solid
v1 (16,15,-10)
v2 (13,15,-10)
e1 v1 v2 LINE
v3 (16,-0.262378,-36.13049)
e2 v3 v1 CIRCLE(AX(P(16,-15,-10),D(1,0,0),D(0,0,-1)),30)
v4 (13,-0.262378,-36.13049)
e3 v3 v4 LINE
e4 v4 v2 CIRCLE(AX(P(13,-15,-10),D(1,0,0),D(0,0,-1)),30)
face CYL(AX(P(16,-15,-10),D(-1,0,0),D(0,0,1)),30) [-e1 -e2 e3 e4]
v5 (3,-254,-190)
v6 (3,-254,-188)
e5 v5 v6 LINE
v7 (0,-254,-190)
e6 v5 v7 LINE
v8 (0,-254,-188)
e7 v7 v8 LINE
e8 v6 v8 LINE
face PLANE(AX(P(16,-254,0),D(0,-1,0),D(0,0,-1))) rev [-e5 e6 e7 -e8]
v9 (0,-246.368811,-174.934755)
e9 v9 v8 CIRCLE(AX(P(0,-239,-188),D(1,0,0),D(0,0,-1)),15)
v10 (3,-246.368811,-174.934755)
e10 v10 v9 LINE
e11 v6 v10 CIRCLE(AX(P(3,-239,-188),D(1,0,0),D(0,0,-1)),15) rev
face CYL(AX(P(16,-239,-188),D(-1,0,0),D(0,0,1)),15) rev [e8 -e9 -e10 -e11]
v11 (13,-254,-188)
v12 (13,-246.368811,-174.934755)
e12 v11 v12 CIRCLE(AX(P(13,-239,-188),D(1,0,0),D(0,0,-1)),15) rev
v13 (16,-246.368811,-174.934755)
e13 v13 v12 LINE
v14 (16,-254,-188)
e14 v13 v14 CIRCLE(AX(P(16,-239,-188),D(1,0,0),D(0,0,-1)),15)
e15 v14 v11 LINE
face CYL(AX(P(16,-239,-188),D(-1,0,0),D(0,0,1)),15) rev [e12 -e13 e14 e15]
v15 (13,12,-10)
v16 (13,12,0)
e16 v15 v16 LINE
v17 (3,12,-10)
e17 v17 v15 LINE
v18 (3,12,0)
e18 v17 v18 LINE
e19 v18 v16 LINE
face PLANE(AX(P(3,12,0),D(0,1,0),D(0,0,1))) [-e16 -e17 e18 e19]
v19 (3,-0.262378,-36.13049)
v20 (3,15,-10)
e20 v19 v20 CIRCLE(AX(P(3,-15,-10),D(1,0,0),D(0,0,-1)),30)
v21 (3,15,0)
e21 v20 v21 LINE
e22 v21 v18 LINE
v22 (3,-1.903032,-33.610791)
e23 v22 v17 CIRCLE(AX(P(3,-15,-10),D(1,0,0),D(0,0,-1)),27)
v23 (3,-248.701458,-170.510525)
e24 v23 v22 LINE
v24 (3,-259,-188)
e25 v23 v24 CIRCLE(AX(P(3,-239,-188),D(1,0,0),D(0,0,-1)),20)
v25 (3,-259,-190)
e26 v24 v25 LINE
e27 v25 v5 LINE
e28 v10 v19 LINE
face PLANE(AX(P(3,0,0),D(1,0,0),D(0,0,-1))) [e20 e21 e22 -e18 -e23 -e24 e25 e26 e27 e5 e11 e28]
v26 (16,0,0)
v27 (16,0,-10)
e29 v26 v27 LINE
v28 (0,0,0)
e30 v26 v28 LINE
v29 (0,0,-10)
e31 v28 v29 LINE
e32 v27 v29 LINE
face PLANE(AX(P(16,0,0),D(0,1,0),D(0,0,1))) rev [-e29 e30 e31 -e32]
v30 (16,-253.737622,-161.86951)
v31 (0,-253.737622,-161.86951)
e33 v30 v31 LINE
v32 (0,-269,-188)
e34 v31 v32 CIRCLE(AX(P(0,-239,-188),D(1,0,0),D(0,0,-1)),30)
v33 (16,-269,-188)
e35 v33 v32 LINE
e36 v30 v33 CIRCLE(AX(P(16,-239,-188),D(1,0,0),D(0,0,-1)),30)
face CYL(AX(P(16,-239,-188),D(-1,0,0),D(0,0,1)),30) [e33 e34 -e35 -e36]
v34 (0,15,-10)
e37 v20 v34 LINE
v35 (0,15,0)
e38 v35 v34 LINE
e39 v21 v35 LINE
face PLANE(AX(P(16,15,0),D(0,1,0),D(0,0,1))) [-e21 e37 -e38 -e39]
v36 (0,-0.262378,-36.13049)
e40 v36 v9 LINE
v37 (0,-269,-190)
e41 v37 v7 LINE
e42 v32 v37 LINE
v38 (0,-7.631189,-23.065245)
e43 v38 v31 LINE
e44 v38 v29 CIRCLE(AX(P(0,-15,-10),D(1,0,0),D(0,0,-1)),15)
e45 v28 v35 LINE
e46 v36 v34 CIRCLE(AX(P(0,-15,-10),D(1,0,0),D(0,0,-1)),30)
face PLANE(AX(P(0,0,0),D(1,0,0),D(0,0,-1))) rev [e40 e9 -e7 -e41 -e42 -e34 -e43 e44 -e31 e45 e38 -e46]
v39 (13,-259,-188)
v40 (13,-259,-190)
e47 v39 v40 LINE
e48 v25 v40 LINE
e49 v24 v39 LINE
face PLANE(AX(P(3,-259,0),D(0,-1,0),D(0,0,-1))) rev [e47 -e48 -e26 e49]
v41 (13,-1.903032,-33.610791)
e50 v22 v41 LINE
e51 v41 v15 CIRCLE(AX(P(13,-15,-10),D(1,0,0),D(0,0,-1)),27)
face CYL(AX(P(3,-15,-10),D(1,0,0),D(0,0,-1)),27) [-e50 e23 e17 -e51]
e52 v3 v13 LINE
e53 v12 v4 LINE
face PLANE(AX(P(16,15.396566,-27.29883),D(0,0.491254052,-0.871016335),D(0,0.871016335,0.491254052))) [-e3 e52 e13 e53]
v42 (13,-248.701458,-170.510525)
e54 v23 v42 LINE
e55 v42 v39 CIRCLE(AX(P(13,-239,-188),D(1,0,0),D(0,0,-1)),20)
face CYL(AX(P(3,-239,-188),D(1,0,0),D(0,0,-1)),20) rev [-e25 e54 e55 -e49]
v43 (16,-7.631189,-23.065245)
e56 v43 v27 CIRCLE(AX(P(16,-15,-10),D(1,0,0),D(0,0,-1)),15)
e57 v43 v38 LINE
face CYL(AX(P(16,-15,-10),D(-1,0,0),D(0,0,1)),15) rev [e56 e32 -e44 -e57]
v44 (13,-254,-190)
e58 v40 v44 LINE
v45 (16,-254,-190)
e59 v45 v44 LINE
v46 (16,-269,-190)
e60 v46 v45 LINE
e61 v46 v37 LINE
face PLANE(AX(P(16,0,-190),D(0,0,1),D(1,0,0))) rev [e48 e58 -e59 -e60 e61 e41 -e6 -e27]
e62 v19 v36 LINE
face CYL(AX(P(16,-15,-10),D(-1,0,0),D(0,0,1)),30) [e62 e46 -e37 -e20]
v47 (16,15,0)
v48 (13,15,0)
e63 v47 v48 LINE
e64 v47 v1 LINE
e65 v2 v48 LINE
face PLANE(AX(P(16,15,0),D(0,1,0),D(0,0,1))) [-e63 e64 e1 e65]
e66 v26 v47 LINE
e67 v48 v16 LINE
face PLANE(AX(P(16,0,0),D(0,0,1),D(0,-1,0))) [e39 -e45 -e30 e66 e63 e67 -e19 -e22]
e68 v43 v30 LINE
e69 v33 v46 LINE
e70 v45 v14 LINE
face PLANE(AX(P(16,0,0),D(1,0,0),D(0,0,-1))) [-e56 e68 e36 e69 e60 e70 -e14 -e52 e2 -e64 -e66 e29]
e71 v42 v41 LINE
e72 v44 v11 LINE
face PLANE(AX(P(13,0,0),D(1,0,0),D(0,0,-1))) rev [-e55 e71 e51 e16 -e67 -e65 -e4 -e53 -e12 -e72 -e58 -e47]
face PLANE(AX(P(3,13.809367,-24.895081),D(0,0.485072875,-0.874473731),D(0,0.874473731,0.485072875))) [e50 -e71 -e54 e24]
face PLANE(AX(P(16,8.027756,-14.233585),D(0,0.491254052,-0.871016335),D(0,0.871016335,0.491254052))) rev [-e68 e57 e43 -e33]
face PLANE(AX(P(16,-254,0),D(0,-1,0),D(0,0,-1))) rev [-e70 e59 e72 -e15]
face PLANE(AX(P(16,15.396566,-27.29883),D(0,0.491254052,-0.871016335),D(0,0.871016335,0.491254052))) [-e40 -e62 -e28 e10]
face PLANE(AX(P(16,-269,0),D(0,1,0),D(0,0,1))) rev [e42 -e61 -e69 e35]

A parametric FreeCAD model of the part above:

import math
import FreeCAD as App
import Part
import Sketcher

V = App.Vector

doc = App.newDocument("Part")
body = doc.addObject("PartDesign::Body", "Body")

# Sketch on YZ plane
sketch1 = doc.addObject("Sketcher::SketchObject", "Sketch")
body.addObject(sketch1)
sketch1.AttachmentSupport = (doc.YZ_Plane, [""])
sketch1.MapMode = "FlatFace"
sketch1.addGeometry(Part.LineSegment(V(0, 0, 0), V(0, -10, 0)), False)
sketch1.addGeometry(Part.ArcOfCircle(Part.Circle(V(-15, -10, 0), V(0, 0, 1), 15), math.radians(-61), math.radians(0)), False)
sketch1.addGeometry(Part.LineSegment(V(-7.6, -23.1, 0), V(-253.7, -161.9, 0)), False)
sketch1.addGeometry(Part.ArcOfCircle(Part.Circle(V(-239, -188, 0), V(0, 0, 1), 30), math.radians(119), math.radians(180)), False)
sketch1.addGeometry(Part.LineSegment(V(-269, -188, 0), V(-269, -190, 0)), False)
sketch1.addGeometry(Part.LineSegment(V(-269, -190, 0), V(-254, -190, 0)), False)
sketch1.addGeometry(Part.LineSegment(V(-254, -190, 0), V(-254, -188, 0)), False)
sketch1.addGeometry(Part.ArcOfCircle(Part.Circle(V(-239, -188, 0), V(0, 0, 1), 15), math.radians(119), math.radians(180)), False)
sketch1.addGeometry(Part.LineSegment(V(-246.4, -174.9, 0), V(-0.3, -36.1, 0)), False)
sketch1.addGeometry(Part.ArcOfCircle(Part.Circle(V(-15, -10, 0), V(0, 0, 1), 30), math.radians(-61), math.radians(0)), False)
sketch1.addGeometry(Part.LineSegment(V(15, -10, 0), V(15, 0, 0)), False)
sketch1.addGeometry(Part.LineSegment(V(15, 0, 0), V(0, 0, 0)), False)
sketch1.addConstraint(Sketcher.Constraint("Tangent", 0, 2, 1, 2))
sketch1.addConstraint(Sketcher.Constraint("Tangent", 1, 1, 2, 1))
sketch1.addConstraint(Sketcher.Constraint("Tangent", 2, 2, 3, 1))
sketch1.addConstraint(Sketcher.Constraint("Tangent", 3, 2, 4, 1))
sketch1.addConstraint(Sketcher.Constraint("Coincident", 4, 2, 5, 1))
sketch1.addConstraint(Sketcher.Constraint("Coincident", 5, 2, 6, 1))
sketch1.addConstraint(Sketcher.Constraint("Tangent", 6, 2, 7, 2))
sketch1.addConstraint(Sketcher.Constraint("Tangent", 7, 1, 8, 1))
sketch1.addConstraint(Sketcher.Constraint("Tangent", 8, 2, 9, 1))
sketch1.addConstraint(Sketcher.Constraint("Tangent", 9, 2, 10, 1))
sketch1.addConstraint(Sketcher.Constraint("Coincident", 10, 2, 11, 1))
sketch1.addConstraint(Sketcher.Constraint("Coincident", 11, 2, 0, 1))
sketch1.addConstraint(Sketcher.Constraint("Vertical", 0))
sketch1.addConstraint(Sketcher.Constraint("Vertical", 4))
sketch1.addConstraint(Sketcher.Constraint("Horizontal", 5))
sketch1.addConstraint(Sketcher.Constraint("Vertical", 6))
sketch1.addConstraint(Sketcher.Constraint("Vertical", 10))
sketch1.addConstraint(Sketcher.Constraint("Horizontal", 11))
sketch1.addConstraint(Sketcher.Constraint("Coincident", 11, 2, -1, 1))
sketch1.addConstraint(Sketcher.Constraint("Coincident", 7, 3, 3, 3))
sketch1.addConstraint(Sketcher.Constraint("Coincident", 9, 3, 1, 3))
sketch1.addConstraint(Sketcher.Constraint("Equal", 1, 7))
sketch1.addConstraint(Sketcher.Constraint("Equal", 3, 9))
sketch1.addConstraint(Sketcher.Constraint("Radius", 1, 15.0))
sketch1.addConstraint(Sketcher.Constraint("Radius", 3, 30.0))
sketch1.addConstraint(Sketcher.Constraint("DistanceY", 0, 2, 0, 1, 10.0))
sketch1.addConstraint(Sketcher.Constraint("DistanceY", 4, 2, 4, 1, 2.0))
sketch1.addConstraint(Sketcher.Constraint("DistanceX", 3, 3, -1, 1, 239.0))
sketch1.addConstraint(Sketcher.Constraint("DistanceY", 3, 3, -1, 1, 188.0))
pad1 = doc.addObject("PartDesign::Pad", "Pad")
body.addObject(pad1)
pad1.Profile = sketch1
pad1.Length = 16

# Sketch on YZ plane
sketch2 = doc.addObject("Sketcher::SketchObject", "Sketch001")
body.addObject(sketch2)
sketch2.AttachmentSupport = (doc.YZ_Plane, [""])
sketch2.MapMode = "FlatFace"
sketch2.AttachmentOffset = App.Placement(V(0, 0, 3), App.Rotation())
sketch2.addGeometry(Part.LineSegment(V(15, -10, 0), V(15, 0, 0)), False)
sketch2.addGeometry(Part.LineSegment(V(15, 0, 0), V(12, 0, 0)), False)
sketch2.addGeometry(Part.LineSegment(V(12, 0, 0), V(12, -10, 0)), False)
sketch2.addGeometry(Part.ArcOfCircle(Part.Circle(V(-15, -10, 0), V(0, 0, 1), 27), math.radians(-61), math.radians(0)), False)
sketch2.addGeometry(Part.LineSegment(V(-1.9, -33.6, 0), V(-248.7, -170.5, 0)), False)
sketch2.addGeometry(Part.ArcOfCircle(Part.Circle(V(-239, -188, 0), V(0, 0, 1), 20), math.radians(119), math.radians(180)), False)
sketch2.addGeometry(Part.LineSegment(V(-259, -188, 0), V(-259, -190, 0)), False)
sketch2.addGeometry(Part.LineSegment(V(-259, -190, 0), V(-254, -190, 0)), False)
sketch2.addGeometry(Part.LineSegment(V(-254, -190, 0), V(-254, -188, 0)), False)
sketch2.addGeometry(Part.ArcOfCircle(Part.Circle(V(-239, -188, 0), V(0, 0, 1), 15), math.radians(119), math.radians(180)), False)
sketch2.addGeometry(Part.LineSegment(V(-246.4, -174.9, 0), V(-0.3, -36.1, 0)), False)
sketch2.addGeometry(Part.ArcOfCircle(Part.Circle(V(-15, -10, 0), V(0, 0, 1), 30), math.radians(-61), math.radians(0)), False)
sketch2.addConstraint(Sketcher.Constraint("Coincident", 0, 2, 1, 1))
sketch2.addConstraint(Sketcher.Constraint("Coincident", 1, 2, 2, 1))
sketch2.addConstraint(Sketcher.Constraint("Tangent", 2, 2, 3, 2))
sketch2.addConstraint(Sketcher.Constraint("Tangent", 3, 1, 4, 1))
sketch2.addConstraint(Sketcher.Constraint("Tangent", 4, 2, 5, 1))
sketch2.addConstraint(Sketcher.Constraint("Tangent", 5, 2, 6, 1))
sketch2.addConstraint(Sketcher.Constraint("Coincident", 6, 2, 7, 1))
sketch2.addConstraint(Sketcher.Constraint("Coincident", 7, 2, 8, 1))
sketch2.addConstraint(Sketcher.Constraint("Tangent", 8, 2, 9, 2))
sketch2.addConstraint(Sketcher.Constraint("Tangent", 9, 1, 10, 1))
sketch2.addConstraint(Sketcher.Constraint("Tangent", 10, 2, 11, 1))
sketch2.addConstraint(Sketcher.Constraint("Tangent", 11, 2, 0, 1))
sketch2.addConstraint(Sketcher.Constraint("Vertical", 0))
sketch2.addConstraint(Sketcher.Constraint("Horizontal", 1))
sketch2.addConstraint(Sketcher.Constraint("Vertical", 2))
sketch2.addConstraint(Sketcher.Constraint("Vertical", 6))
sketch2.addConstraint(Sketcher.Constraint("Horizontal", 7))
sketch2.addConstraint(Sketcher.Constraint("Vertical", 8))
sketch2.addConstraint(Sketcher.Constraint("Coincident", 9, 3, 5, 3))
sketch2.addConstraint(Sketcher.Constraint("Coincident", 11, 3, 3, 3))
sketch2.addConstraint(Sketcher.Constraint("PointOnObject", 0, 2, -1))
sketch2.addConstraint(Sketcher.Constraint("Radius", 3, 27.0))
sketch2.addConstraint(Sketcher.Constraint("Radius", 5, 20.0))
sketch2.addConstraint(Sketcher.Constraint("Radius", 9, 15.0))
sketch2.addConstraint(Sketcher.Constraint("Radius", 11, 30.0))
sketch2.addConstraint(Sketcher.Constraint("DistanceY", 0, 1, 0, 2, 10.0))
sketch2.addConstraint(Sketcher.Constraint("DistanceY", 6, 2, 6, 1, 2.0))
sketch2.addConstraint(Sketcher.Constraint("DistanceX", 3, 3, -1, 1, 15.0))
sketch2.addConstraint(Sketcher.Constraint("DistanceX", 5, 3, -1, 1, 239.0))
sketch2.addConstraint(Sketcher.Constraint("DistanceY", 5, 3, -1, 1, 188.0))
pocket1 = doc.addObject("PartDesign::Pocket", "Pocket")
body.addObject(pocket1)
pocket1.Profile = sketch2
pocket1.Length = 10
pocket1.Reversed = True

doc.recompute()
